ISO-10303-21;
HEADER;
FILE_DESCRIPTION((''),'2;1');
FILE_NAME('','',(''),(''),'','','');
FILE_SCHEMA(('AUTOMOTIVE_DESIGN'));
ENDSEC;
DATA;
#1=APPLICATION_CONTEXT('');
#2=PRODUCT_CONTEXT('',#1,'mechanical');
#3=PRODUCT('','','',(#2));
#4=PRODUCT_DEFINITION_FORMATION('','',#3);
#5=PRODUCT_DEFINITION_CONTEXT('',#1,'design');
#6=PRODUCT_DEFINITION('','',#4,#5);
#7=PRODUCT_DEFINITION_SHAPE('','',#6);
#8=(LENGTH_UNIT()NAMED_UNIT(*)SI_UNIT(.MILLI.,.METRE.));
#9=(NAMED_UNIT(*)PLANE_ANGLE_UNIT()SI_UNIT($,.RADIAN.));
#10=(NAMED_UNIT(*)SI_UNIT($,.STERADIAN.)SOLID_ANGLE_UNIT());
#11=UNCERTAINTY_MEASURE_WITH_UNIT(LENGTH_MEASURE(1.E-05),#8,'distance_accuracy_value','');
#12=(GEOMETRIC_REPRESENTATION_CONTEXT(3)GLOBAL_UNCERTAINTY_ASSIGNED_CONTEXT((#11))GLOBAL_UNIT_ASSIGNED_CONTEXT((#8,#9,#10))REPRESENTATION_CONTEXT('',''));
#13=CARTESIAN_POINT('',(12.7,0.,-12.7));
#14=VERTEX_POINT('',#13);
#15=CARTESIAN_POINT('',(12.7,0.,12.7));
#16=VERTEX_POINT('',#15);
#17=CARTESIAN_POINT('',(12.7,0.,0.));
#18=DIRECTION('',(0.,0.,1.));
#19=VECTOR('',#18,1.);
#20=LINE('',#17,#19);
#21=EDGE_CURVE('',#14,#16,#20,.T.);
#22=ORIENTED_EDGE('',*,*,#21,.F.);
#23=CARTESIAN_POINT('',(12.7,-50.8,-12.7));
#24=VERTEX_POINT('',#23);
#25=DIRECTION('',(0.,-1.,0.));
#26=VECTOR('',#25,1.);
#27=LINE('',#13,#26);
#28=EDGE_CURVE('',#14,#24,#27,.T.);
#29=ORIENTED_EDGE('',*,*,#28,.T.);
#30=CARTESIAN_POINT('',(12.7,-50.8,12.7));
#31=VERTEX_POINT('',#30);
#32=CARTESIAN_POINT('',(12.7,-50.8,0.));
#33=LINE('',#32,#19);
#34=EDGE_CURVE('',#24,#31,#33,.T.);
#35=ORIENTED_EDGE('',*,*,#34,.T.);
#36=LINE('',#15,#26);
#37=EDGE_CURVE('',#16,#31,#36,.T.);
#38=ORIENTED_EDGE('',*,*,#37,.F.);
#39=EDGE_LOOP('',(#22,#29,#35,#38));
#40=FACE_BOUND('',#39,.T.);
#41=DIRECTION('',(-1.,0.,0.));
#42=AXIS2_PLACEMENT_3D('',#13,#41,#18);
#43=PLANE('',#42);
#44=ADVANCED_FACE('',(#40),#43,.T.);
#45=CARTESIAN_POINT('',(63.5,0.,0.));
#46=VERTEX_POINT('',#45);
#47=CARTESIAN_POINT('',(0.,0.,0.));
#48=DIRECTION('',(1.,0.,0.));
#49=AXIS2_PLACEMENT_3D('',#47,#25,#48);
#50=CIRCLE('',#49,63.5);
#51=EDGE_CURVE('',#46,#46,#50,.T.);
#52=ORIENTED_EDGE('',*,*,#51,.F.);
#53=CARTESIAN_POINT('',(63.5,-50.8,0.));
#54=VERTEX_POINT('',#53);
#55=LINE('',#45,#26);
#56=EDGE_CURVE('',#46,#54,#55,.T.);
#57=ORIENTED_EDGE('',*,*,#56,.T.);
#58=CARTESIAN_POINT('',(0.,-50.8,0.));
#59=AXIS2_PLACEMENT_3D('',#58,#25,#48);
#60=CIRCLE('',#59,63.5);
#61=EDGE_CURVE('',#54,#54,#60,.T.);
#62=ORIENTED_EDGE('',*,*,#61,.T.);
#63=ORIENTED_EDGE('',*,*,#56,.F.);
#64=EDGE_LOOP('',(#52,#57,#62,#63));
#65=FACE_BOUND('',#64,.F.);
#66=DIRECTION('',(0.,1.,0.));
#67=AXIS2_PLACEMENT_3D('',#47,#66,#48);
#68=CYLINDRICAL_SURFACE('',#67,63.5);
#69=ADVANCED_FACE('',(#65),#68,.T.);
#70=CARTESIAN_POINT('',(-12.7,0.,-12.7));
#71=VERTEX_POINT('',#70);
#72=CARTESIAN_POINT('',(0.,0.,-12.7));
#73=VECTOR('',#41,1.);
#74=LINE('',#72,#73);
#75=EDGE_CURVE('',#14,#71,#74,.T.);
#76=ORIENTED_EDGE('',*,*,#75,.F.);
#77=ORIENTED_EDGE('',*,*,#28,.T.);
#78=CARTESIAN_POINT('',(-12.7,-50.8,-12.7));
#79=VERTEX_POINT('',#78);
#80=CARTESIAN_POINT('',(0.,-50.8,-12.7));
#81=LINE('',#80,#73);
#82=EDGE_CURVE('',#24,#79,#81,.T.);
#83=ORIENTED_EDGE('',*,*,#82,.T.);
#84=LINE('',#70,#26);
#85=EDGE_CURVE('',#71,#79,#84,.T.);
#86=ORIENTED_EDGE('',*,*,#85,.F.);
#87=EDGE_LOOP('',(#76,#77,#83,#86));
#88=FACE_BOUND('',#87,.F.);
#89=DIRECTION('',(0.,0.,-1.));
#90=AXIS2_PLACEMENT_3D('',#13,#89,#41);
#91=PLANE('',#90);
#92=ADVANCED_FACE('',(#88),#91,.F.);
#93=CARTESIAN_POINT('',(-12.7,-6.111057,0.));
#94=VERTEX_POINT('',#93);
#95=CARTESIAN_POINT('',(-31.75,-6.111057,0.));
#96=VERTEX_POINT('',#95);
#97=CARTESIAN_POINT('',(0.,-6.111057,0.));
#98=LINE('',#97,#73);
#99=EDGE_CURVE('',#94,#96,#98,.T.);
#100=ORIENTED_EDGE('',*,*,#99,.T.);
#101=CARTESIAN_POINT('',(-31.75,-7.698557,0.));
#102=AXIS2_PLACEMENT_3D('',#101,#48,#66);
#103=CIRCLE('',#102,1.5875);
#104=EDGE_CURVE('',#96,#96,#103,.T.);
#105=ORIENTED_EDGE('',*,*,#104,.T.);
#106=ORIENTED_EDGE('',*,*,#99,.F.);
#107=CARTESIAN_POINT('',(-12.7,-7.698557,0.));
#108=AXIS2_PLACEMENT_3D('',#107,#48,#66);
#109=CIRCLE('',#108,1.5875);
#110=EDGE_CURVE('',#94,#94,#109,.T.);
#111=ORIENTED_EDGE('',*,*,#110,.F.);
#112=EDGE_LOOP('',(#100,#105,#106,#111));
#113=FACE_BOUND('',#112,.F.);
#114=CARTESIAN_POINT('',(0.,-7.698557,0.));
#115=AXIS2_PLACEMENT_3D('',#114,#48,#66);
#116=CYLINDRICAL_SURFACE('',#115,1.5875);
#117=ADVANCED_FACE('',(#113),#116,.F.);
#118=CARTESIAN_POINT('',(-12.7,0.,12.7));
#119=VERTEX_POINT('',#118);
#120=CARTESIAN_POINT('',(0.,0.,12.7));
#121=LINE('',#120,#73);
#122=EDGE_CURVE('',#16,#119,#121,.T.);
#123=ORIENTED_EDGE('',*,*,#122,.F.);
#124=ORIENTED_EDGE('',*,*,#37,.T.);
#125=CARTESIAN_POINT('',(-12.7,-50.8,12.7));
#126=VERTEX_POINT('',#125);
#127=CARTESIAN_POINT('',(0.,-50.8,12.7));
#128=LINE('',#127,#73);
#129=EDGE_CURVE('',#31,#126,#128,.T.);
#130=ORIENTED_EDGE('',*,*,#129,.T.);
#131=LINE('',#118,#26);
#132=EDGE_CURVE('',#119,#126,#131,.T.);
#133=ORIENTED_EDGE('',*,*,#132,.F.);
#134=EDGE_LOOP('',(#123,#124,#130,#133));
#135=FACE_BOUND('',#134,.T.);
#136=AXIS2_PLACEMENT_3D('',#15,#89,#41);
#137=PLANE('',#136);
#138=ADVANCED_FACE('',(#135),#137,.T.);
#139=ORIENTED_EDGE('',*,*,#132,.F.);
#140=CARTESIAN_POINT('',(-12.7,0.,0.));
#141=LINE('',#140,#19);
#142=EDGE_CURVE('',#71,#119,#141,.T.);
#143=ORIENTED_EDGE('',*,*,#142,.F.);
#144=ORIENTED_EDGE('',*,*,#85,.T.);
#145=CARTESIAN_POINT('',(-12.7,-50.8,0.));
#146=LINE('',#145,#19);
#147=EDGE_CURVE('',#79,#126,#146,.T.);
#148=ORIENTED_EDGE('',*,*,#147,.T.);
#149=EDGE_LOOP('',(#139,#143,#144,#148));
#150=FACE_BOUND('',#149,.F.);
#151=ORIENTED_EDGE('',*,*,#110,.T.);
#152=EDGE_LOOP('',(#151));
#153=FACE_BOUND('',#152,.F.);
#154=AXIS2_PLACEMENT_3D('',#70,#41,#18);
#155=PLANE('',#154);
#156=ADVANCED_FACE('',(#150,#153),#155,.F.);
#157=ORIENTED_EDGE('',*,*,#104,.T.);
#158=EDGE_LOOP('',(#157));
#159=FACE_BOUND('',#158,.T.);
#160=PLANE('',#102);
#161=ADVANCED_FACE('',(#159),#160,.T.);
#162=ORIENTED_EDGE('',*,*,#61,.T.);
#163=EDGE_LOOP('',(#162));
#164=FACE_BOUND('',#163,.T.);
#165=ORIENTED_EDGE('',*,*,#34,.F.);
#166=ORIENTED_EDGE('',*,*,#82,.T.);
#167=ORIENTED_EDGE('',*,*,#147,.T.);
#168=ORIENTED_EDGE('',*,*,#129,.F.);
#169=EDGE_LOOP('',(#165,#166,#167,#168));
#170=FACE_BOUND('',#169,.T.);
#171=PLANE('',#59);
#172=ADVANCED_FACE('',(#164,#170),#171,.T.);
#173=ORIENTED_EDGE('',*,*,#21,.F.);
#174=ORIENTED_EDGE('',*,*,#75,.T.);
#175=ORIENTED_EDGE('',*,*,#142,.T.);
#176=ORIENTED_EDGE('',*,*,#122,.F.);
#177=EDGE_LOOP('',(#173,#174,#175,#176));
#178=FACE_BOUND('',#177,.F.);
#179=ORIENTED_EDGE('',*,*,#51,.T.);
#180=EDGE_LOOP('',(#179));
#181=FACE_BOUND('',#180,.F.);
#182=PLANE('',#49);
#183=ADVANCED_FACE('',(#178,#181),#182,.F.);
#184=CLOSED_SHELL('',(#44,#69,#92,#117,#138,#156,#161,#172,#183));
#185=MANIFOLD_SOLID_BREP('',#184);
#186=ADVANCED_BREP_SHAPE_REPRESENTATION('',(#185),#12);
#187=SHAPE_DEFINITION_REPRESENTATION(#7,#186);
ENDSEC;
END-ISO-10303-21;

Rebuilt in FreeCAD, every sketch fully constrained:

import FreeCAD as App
import Part
import Sketcher
Q = App.Units.Quantity

doc = App.newDocument("Part")
body = doc.addObject("PartDesign::Body", "Body")

# Sketch on XZ plane
sketch1 = body.newObject("Sketcher::SketchObject", "Sketch")
sketch1.AttachmentSupport = (doc.getObject("XZ_Plane"), [""])
sketch1.MapMode = "FlatFace"
sketch1.addGeometry(Part.Circle(App.Vector(0, 0, 0), App.Vector(0, 0, 1), 63.5), False)
sketch1.addConstraint([
    Sketcher.Constraint("Coincident", 0, 3, -1, 1),
    Sketcher.Constraint("Diameter", 0, Q("5 in")),
])
pad1 = body.newObject("PartDesign::Pad", "Pad")
pad1.Profile = sketch1
pad1.Length = Q("2 in")

# Sketch on XZ plane
sketch2 = body.newObject("Sketcher::SketchObject", "Sketch001")
sketch2.AttachmentSupport = (doc.getObject("XZ_Plane"), [""])
sketch2.MapMode = "FlatFace"
sketch2.addGeometry([
    Part.LineSegment(App.Vector(12.7, 12.7, 0), App.Vector(12.7, -12.7, 0)),
    Part.LineSegment(App.Vector(12.7, -12.7, 0), App.Vector(-12.7, -12.7, 0)),
    Part.LineSegment(App.Vector(-12.7, -12.7, 0), App.Vector(-12.7, 12.7, 0)),
    Part.LineSegment(App.Vector(-12.7, 12.7, 0), App.Vector(12.7, 12.7, 0)),
], False)
sketch2.addConstraint([
    Sketcher.Constraint("Coincident", 0, 2, 1, 1),
    Sketcher.Constraint("Coincident", 1, 2, 2, 1),
    Sketcher.Constraint("Coincident", 2, 2, 3, 1),
    Sketcher.Constraint("Coincident", 3, 2, 0, 1),
    Sketcher.Constraint("Vertical", 0),
    Sketcher.Constraint("Horizontal", 1),
    Sketcher.Constraint("Vertical", 2),
    Sketcher.Constraint("Horizontal", 3),
    Sketcher.Constraint("Symmetric", 0, 2, 2, 2, -1, 1),
    Sketcher.Constraint("Equal", 3, 0),
    Sketcher.Constraint("DistanceX", 1, 2, 1, 1, Q("1 in")),
])
pocket1 = body.newObject("PartDesign::Pocket", "Pocket")
pocket1.Profile = sketch2
pocket1.Length = Q("2 in")
pocket1.Reversed = True

# Sketch on YZ plane
sketch3 = body.newObject("Sketcher::SketchObject", "Sketch002")
sketch3.AttachmentSupport = (doc.getObject("YZ_Plane"), [""])
sketch3.MapMode = "FlatFace"
sketch3.addGeometry(Part.Circle(App.Vector(-7.698557, 0, 0), App.Vector(0, 0, 1), 1.5875), False)
sketch3.addConstraint([
    Sketcher.Constraint("PointOnObject", 0, 3, -1),
    Sketcher.Constraint("Diameter", 0, Q("0.125 in")),
    Sketcher.Constraint("DistanceX", 0, 3, -1, 1, Q("7.698557 mm")),
])
pocket2 = body.newObject("PartDesign::Pocket", "Pocket001")
pocket2.Profile = sketch3
pocket2.Length = Q("1.25 in")

doc.recompute()
